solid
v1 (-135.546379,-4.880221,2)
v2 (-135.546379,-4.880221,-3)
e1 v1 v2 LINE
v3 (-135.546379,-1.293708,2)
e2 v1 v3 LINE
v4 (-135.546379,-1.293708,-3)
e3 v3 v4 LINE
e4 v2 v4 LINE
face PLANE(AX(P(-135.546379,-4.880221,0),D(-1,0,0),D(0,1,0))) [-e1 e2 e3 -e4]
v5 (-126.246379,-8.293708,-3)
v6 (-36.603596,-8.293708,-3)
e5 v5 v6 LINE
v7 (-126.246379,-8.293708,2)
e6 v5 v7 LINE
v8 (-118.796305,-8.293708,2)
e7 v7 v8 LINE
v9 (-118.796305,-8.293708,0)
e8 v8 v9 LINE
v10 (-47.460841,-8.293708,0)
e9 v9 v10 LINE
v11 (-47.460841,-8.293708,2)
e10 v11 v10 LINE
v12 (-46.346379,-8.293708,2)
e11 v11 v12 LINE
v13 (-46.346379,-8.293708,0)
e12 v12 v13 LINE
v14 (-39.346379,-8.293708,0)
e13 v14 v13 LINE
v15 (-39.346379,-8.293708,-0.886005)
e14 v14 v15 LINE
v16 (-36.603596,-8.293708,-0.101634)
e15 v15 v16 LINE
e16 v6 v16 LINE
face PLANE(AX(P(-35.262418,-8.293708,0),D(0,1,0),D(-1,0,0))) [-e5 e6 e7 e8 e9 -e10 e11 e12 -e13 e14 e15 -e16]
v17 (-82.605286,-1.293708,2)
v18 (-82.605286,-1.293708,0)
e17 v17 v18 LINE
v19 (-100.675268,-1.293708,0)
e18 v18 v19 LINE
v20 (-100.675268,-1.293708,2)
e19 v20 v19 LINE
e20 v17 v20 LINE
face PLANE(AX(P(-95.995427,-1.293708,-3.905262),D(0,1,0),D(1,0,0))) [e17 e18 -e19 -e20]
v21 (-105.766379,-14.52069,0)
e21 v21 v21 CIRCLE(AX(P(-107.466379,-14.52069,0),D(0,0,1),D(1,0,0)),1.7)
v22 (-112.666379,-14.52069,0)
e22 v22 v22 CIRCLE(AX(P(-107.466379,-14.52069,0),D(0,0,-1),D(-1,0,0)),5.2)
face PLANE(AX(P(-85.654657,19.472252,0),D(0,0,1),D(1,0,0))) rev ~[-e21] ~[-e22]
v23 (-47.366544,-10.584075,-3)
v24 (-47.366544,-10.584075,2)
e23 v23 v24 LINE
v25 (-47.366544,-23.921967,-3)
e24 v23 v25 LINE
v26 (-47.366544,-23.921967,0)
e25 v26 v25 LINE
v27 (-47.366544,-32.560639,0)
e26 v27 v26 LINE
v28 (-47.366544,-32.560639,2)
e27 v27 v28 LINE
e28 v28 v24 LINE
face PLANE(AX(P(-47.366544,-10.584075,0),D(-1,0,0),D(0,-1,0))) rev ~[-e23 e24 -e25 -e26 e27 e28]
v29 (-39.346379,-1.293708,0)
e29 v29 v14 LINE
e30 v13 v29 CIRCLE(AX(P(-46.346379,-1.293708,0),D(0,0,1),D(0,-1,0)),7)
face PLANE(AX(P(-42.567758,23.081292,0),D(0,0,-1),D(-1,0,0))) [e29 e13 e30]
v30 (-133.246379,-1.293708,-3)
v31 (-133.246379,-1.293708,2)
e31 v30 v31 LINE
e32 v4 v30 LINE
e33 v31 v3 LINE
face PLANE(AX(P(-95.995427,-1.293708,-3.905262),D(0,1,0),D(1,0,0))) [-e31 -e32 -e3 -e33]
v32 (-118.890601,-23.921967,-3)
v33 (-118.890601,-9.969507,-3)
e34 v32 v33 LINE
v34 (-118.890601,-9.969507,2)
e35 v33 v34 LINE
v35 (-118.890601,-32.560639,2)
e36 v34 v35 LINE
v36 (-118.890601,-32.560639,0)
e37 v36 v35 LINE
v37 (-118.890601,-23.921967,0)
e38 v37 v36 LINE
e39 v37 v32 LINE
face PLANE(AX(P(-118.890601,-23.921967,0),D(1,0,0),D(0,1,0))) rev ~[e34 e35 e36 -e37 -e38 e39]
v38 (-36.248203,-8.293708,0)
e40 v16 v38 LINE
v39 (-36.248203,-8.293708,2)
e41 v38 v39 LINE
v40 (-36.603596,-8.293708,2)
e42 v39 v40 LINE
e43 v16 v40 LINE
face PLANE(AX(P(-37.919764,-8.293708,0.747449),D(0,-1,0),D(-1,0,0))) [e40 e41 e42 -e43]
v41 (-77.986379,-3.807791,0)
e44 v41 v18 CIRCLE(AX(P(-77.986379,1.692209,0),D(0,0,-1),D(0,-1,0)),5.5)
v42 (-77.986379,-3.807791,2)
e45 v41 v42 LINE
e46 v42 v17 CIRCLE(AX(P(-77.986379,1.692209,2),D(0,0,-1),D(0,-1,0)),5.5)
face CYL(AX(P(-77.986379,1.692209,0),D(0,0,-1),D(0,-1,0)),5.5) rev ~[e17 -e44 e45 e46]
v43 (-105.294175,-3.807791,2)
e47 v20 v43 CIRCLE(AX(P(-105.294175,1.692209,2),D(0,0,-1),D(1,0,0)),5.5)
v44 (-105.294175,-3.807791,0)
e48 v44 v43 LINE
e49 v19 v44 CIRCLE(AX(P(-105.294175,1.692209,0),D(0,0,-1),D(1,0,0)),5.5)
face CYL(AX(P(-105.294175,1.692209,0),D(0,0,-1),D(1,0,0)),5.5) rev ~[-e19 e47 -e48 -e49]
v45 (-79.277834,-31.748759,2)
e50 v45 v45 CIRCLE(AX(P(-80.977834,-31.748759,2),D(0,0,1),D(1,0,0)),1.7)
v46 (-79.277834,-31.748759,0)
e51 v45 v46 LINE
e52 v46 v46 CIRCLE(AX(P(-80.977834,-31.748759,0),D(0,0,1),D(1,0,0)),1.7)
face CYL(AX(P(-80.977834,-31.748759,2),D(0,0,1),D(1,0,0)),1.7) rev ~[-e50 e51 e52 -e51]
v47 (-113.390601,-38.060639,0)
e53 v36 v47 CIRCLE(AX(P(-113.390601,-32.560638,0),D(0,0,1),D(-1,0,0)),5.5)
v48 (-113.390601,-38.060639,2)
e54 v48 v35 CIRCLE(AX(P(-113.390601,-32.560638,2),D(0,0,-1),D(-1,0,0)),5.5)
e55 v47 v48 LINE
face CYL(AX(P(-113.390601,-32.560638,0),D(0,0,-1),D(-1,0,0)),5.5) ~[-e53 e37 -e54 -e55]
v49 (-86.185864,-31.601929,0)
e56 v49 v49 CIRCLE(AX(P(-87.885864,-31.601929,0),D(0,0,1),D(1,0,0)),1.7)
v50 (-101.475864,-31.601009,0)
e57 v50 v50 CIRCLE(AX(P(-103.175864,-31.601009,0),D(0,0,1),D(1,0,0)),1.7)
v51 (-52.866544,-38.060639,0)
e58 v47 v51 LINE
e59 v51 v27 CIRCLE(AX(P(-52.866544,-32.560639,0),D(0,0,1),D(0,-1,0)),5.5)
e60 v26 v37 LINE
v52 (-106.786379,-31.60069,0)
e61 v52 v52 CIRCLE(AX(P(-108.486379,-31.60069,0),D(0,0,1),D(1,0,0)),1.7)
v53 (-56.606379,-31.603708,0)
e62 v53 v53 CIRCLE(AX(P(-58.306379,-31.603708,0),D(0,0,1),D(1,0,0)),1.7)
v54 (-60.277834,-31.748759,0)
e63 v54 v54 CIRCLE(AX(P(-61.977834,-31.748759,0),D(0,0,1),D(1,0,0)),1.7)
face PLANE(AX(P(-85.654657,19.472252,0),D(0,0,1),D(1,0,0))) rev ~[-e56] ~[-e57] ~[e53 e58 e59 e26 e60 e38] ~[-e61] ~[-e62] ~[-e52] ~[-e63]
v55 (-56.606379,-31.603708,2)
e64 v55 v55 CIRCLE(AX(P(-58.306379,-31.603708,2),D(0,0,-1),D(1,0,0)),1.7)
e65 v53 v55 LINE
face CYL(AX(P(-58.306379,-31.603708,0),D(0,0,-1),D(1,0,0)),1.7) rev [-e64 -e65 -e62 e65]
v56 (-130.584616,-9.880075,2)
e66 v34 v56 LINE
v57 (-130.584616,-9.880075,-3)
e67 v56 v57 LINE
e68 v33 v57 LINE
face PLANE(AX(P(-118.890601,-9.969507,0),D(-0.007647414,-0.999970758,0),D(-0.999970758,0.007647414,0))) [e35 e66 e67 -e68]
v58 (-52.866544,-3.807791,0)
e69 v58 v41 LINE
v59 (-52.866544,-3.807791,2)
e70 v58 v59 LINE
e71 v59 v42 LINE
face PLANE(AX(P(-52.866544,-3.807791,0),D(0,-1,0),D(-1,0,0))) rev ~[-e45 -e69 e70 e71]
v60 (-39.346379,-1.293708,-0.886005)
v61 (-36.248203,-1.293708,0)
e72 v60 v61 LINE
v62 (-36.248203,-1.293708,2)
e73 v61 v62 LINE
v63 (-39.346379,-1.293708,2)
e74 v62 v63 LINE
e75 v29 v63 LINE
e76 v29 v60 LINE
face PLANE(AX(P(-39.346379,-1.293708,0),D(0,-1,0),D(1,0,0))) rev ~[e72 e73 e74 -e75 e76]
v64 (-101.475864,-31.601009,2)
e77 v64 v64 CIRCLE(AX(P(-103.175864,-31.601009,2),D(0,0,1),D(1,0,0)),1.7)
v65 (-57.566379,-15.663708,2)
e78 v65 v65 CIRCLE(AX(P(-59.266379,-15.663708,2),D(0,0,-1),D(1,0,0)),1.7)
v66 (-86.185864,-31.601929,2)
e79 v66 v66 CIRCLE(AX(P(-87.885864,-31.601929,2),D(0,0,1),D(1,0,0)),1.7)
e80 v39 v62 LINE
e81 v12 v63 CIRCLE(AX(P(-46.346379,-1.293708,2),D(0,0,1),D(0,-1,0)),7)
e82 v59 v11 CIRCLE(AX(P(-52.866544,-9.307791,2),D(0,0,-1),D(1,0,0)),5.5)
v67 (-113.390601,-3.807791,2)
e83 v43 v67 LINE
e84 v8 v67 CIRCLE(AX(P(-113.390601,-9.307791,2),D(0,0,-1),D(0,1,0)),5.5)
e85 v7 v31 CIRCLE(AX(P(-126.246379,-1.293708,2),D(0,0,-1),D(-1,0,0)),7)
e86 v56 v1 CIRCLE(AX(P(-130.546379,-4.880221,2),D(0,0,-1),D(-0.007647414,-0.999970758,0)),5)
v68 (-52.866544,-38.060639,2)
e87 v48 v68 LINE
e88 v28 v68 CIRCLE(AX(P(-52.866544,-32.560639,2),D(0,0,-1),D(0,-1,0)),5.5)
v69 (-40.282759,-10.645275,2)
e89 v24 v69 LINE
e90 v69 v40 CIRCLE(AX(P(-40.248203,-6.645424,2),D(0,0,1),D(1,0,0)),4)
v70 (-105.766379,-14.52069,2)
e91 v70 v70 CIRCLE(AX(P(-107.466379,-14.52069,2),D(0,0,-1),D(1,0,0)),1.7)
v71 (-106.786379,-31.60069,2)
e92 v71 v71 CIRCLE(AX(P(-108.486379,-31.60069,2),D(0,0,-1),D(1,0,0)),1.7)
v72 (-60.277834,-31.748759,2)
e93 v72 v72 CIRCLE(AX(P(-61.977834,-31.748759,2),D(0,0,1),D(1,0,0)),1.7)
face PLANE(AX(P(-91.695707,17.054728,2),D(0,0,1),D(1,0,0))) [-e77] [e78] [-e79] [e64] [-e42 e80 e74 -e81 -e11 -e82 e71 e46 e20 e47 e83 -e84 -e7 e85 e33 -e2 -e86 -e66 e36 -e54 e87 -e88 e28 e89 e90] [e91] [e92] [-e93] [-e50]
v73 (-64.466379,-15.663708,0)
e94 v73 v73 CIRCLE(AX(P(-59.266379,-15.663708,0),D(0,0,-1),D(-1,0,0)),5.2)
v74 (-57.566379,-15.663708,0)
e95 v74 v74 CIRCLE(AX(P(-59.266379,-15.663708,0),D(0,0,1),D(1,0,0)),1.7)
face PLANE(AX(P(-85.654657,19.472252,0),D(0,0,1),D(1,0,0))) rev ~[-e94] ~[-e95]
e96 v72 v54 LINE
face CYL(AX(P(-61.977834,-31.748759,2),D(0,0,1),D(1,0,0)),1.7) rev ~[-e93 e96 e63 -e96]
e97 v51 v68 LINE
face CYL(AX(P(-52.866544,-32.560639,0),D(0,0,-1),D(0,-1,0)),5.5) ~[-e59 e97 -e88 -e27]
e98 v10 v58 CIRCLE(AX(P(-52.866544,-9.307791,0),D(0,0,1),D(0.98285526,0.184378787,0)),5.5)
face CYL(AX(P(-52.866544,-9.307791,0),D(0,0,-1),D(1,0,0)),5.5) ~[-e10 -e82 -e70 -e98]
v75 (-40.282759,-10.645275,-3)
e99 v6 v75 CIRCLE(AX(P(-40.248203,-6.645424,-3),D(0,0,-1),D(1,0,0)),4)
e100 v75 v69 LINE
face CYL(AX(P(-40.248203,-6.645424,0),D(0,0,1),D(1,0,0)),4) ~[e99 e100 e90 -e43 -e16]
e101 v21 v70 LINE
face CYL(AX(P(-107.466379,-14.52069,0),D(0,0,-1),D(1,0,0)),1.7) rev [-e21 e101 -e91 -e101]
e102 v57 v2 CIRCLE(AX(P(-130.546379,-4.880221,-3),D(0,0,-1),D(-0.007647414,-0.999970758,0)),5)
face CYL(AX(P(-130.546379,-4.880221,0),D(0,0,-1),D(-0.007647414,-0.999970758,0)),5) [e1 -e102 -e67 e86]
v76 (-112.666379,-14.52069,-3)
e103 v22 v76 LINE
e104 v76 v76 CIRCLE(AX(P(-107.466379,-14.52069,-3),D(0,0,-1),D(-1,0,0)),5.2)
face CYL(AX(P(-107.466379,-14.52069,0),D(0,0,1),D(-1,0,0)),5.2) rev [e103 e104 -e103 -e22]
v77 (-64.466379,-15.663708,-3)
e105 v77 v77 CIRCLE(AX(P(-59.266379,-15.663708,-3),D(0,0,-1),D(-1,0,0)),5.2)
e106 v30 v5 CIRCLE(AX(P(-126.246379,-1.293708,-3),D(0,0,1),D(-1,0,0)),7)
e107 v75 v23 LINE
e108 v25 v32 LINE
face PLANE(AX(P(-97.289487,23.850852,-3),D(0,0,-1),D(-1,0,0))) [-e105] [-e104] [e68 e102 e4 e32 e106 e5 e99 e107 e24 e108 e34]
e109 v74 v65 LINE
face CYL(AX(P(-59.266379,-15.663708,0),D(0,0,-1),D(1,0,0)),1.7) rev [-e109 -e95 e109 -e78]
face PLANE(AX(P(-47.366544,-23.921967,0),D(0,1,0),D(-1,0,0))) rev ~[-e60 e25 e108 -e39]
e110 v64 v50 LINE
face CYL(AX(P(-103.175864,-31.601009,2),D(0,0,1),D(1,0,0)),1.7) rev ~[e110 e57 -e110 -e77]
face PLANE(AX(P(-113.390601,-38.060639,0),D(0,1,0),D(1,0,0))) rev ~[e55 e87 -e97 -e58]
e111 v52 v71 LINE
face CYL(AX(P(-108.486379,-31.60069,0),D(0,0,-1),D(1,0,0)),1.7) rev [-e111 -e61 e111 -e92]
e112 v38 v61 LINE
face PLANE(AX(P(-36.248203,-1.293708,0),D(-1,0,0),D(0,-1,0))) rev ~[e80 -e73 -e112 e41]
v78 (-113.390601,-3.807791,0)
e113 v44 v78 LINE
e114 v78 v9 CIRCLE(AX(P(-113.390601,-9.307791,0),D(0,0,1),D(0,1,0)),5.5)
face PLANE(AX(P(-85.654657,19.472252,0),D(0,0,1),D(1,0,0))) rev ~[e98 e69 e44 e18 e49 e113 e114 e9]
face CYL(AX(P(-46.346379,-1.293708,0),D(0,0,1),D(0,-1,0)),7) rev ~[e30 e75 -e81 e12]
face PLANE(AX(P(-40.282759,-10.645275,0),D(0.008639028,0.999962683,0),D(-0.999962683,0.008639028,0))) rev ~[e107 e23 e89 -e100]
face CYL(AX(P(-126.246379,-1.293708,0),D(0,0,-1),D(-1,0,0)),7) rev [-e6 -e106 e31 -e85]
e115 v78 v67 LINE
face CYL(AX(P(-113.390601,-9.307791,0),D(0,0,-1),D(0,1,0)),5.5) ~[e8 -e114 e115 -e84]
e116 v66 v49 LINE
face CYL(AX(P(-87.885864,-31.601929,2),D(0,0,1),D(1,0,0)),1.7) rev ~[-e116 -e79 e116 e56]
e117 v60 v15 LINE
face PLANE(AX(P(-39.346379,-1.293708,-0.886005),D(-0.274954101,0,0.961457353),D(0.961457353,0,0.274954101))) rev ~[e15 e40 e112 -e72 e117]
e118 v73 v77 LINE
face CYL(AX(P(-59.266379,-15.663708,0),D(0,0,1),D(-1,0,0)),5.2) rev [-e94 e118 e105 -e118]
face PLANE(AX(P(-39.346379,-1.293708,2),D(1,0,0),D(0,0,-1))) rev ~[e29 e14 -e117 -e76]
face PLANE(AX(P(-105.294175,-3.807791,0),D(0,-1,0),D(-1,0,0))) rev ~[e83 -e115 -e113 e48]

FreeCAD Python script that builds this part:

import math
import FreeCAD as App
import Part
import Sketcher
from FreeCAD import Vector
Q = App.Units.Quantity


def add_polygon(sketch, points):
    """Adds a closed chain of lines whose ends are joined by coincident constraints."""
    first, n = sketch.GeometryCount, len(points)
    for a, b in zip(points, points[1:] + points[:1]):
        sketch.addGeometry(Part.LineSegment(App.Vector(*a, 0), App.Vector(*b, 0)), False)
    for i in range(n):
        sketch.addConstraint(Sketcher.Constraint("Coincident", first + i, 2, first + (i + 1) % n, 1))

doc = App.newDocument("Part")
body = doc.addObject("PartDesign::Body", "Body")

sketch1 = body.newObject("Sketcher::SketchObject", "Sketch")
sketch1.AttachmentSupport = (doc.getObject("XY_Plane"), [""])
sketch1.MapMode = "FlatFace"
sketch1.addGeometry([
    Part.ArcOfCircle(Part.Circle(Vector(-112.180084, 59.69512, 0), Vector(0, 0, 1), 5.5), math.radians(180), math.radians(270)),
    Part.LineSegment(Vector(-112.180084, 54.19512, 0), Vector(-105.294175, 54.19512, 0)),
    Part.ArcOfCircle(Part.Circle(Vector(-105.294175, 48.69512, 0), Vector(0, 0, 1), 5.5), math.radians(0), math.radians(90)),
    Part.LineSegment(Vector(-99.794175, 48.69512, 0), Vector(-99.794175, 35.930824, 0)),
    Part.ArcOfCircle(Part.Circle(Vector(-105.294175, 35.930824, 0), Vector(0, 0, 1), 5.5), math.radians(-90), math.radians(0)),
    Part.LineSegment(Vector(-105.294175, 30.430824, 0), Vector(-112.180084, 30.430824, 0)),
    Part.ArcOfCircle(Part.Circle(Vector(-112.180084, 24.930824, 0), Vector(0, 0, 1), 5.5), math.radians(90), math.radians(180)),
    Part.LineSegment(Vector(-117.680084, 24.930824, 0), Vector(-117.680084, 23.910008, 0)),
    Part.ArcOfCircle(Part.Circle(Vector(-112.180084, 23.910008, 0), Vector(0, 0, 1), 5.5), math.radians(180), math.radians(270)),
    Part.LineSegment(Vector(-112.180084, 18.410008, 0), Vector(-105.294175, 18.410008, 0)),
    Part.ArcOfCircle(Part.Circle(Vector(-105.294175, 12.910008, 0), Vector(0, 0, 1), 5.5), math.radians(0), math.radians(90)),
    Part.LineSegment(Vector(-99.794175, 12.910008, 0), Vector(-99.794175, 1.692209, 0)),
    Part.ArcOfCircle(Part.Circle(Vector(-105.294175, 1.692209, 0), Vector(0, 0, 1), 5.5), math.radians(-90), math.radians(0)),
    Part.LineSegment(Vector(-105.294175, -3.807791, 0), Vector(-113.390601, -3.807791, 0)),
    Part.ArcOfCircle(Part.Circle(Vector(-113.390601, -9.307791, 0), Vector(0, 0, 1), 5.5), math.radians(90), math.radians(180)),
    Part.LineSegment(Vector(-118.890601, -9.307791, 0), Vector(-118.890601, -32.560639, 0)),
    Part.ArcOfCircle(Part.Circle(Vector(-113.390601, -32.560639, 0), Vector(0, 0, 1), 5.5), math.radians(180), math.radians(270)),
    Part.LineSegment(Vector(-113.390601, -38.060639, 0), Vector(-52.866544, -38.060639, 0)),
    Part.ArcOfCircle(Part.Circle(Vector(-52.866544, -32.560639, 0), Vector(0, 0, 1), 5.5), math.radians(-90), math.radians(0)),
    Part.LineSegment(Vector(-47.366544, -32.560639, 0), Vector(-47.366544, -9.307791, 0)),
    Part.ArcOfCircle(Part.Circle(Vector(-52.866544, -9.307791, 0), Vector(0, 0, 1), 5.5), math.radians(0), math.radians(90)),
    Part.LineSegment(Vector(-52.866544, -3.807791, 0), Vector(-77.986379, -3.807791, 0)),
    Part.ArcOfCircle(Part.Circle(Vector(-77.986379, 1.692209, 0), Vector(0, 0, 1), 5.5), math.radians(180), math.radians(270)),
    Part.LineSegment(Vector(-83.486379, 1.692209, 0), Vector(-83.486379, 12.910008, 0)),
    Part.ArcOfCircle(Part.Circle(Vector(-77.986379, 12.910008, 0), Vector(0, 0, 1), 5.5), math.radians(90), math.radians(180)),
    Part.LineSegment(Vector(-77.986379, 18.410008, 0), Vector(-69.856379, 18.410008, 0)),
    Part.ArcOfCircle(Part.Circle(Vector(-69.856379, 23.910008, 0), Vector(0, 0, 1), 5.5), math.radians(-90), math.radians(0)),
    Part.LineSegment(Vector(-64.356379, 23.910008, 0), Vector(-64.356379, 24.930824, 0)),
    Part.ArcOfCircle(Part.Circle(Vector(-69.856379, 24.930824, 0), Vector(0, 0, 1), 5.5), math.radians(0), math.radians(90)),
    Part.LineSegment(Vector(-69.856379, 30.430824, 0), Vector(-77.986379, 30.430824, 0)),
    Part.ArcOfCircle(Part.Circle(Vector(-77.986379, 35.930824, 0), Vector(0, 0, 1), 5.5), math.radians(180), math.radians(270)),
    Part.LineSegment(Vector(-83.486379, 35.930824, 0), Vector(-83.486379, 55.21931, 0)),
    Part.ArcOfCircle(Part.Circle(Vector(-77.986379, 55.21931, 0), Vector(0, 0, 1), 5.5), math.radians(90), math.radians(180)),
    Part.LineSegment(Vector(-77.986379, 60.71931, 0), Vector(-54.190367, 60.71931, 0)),
    Part.ArcOfCircle(Part.Circle(Vector(-54.190367, 66.21931, 0), Vector(0, 0, 1), 5.5), math.radians(-90), math.radians(0)),
    Part.LineSegment(Vector(-48.690367, 66.21931, 0), Vector(-48.690367, 67.21931, 0)),
    Part.ArcOfCircle(Part.Circle(Vector(-54.190367, 67.21931, 0), Vector(0, 0, 1), 5.5), math.radians(0), math.radians(90)),
    Part.LineSegment(Vector(-54.190367, 72.71931, 0), Vector(-112.180084, 72.71931, 0)),
    Part.ArcOfCircle(Part.Circle(Vector(-112.180084, 67.21931, 0), Vector(0, 0, 1), 5.5), math.radians(90), math.radians(180)),
    Part.LineSegment(Vector(-117.680084, 67.21931, 0), Vector(-117.680084, 59.69512, 0)),
    Part.Circle(Vector(-108.486379, -31.60069, 0), Vector(0, 0, 1), 1.7),
    Part.Circle(Vector(-107.466379, -14.52069, 0), Vector(0, 0, 1), 1.7),
    Part.Circle(Vector(-58.306379, -31.603708, 0), Vector(0, 0, 1), 1.7),
    Part.Circle(Vector(-59.266379, -15.663708, 0), Vector(0, 0, 1), 1.7),
    Part.LineSegment(Vector(-70.086379, 21.460065, 0), Vector(-111.390601, 21.460065, 0)),
    Part.ArcOfCircle(Part.Circle(Vector(-111.390601, 23.460065, 0), Vector(0, 0, 1), 2), math.radians(180), math.radians(270)),
    Part.LineSegment(Vector(-113.390601, 23.460065, 0), Vector(-113.390601, 24.84252, 0)),
    Part.ArcOfCircle(Part.Circle(Vector(-111.390601, 24.84252, 0), Vector(0, 0, 1), 2), math.radians(90), math.radians(180)),
    Part.LineSegment(Vector(-111.390601, 26.84252, 0), Vector(-70.086379, 26.84252, 0)),
    Part.ArcOfCircle(Part.Circle(Vector(-70.086379, 24.84252, 0), Vector(0, 0, 1), 2), math.radians(0), math.radians(90)),
    Part.LineSegment(Vector(-68.086379, 24.84252, 0), Vector(-68.086379, 23.460065, 0)),
    Part.ArcOfCircle(Part.Circle(Vector(-70.086379, 23.460065, 0), Vector(0, 0, 1), 2), math.radians(-90), math.radians(0)),
    Part.Circle(Vector(-91.856379, 36.71931, 0), Vector(0, 0, 1), 1.7),
    Part.Circle(Vector(-107.466379, 60.71931, 0), Vector(0, 0, 1), 1.7),
    Part.Circle(Vector(-59.266379, 66.93931, 0), Vector(0, 0, 1), 1.7),
], False)
sketch1.addConstraint([
    Sketcher.Constraint("Tangent", 0, 2, 1, 1),
    Sketcher.Constraint("Tangent", 1, 2, 2, 2),
    Sketcher.Constraint("Tangent", 2, 1, 3, 1),
    Sketcher.Constraint("Tangent", 3, 2, 4, 2),
    Sketcher.Constraint("Tangent", 4, 1, 5, 1),
    Sketcher.Constraint("Tangent", 5, 2, 6, 1),
    Sketcher.Constraint("Tangent", 6, 2, 7, 1),
    Sketcher.Constraint("Tangent", 7, 2, 8, 1),
    Sketcher.Constraint("Tangent", 8, 2, 9, 1),
    Sketcher.Constraint("Tangent", 9, 2, 10, 2),
    Sketcher.Constraint("Tangent", 10, 1, 11, 1),
    Sketcher.Constraint("Tangent", 11, 2, 12, 2),
    Sketcher.Constraint("Tangent", 12, 1, 13, 1),
    Sketcher.Constraint("Tangent", 13, 2, 14, 1),
    Sketcher.Constraint("Tangent", 14, 2, 15, 1),
    Sketcher.Constraint("Tangent", 15, 2, 16, 1),
    Sketcher.Constraint("Tangent", 16, 2, 17, 1),
    Sketcher.Constraint("Tangent", 17, 2, 18, 1),
    Sketcher.Constraint("Tangent", 18, 2, 19, 1),
    Sketcher.Constraint("Tangent", 19, 2, 20, 1),
    Sketcher.Constraint("Tangent", 20, 2, 21, 1),
    Sketcher.Constraint("Tangent", 21, 2, 22, 2),
    Sketcher.Constraint("Tangent", 22, 1, 23, 1),
    Sketcher.Constraint("Tangent", 23, 2, 24, 2),
    Sketcher.Constraint("Tangent", 24, 1, 25, 1),
    Sketcher.Constraint("Tangent", 25, 2, 26, 1),
    Sketcher.Constraint("Tangent", 26, 2, 27, 1),
    Sketcher.Constraint("Tangent", 27, 2, 28, 1),
    Sketcher.Constraint("Tangent", 28, 2, 29, 1),
    Sketcher.Constraint("Tangent", 29, 2, 30, 2),
    Sketcher.Constraint("Tangent", 30, 1, 31, 1),
    Sketcher.Constraint("Tangent", 31, 2, 32, 2),
    Sketcher.Constraint("Tangent", 32, 1, 33, 1),
    Sketcher.Constraint("Tangent", 33, 2, 34, 1),
    Sketcher.Constraint("Tangent", 34, 2, 35, 1),
    Sketcher.Constraint("Tangent", 35, 2, 36, 1),
    Sketcher.Constraint("Tangent", 36, 2, 37, 1),
    Sketcher.Constraint("Tangent", 37, 2, 38, 1),
    Sketcher.Constraint("Tangent", 38, 2, 39, 1),
    Sketcher.Constraint("Tangent", 39, 2, 0, 1),
    Sketcher.Constraint("Tangent", 44, 2, 45, 2),
    Sketcher.Constraint("Tangent", 45, 1, 46, 1),
    Sketcher.Constraint("Tangent", 46, 2, 47, 2),
    Sketcher.Constraint("Tangent", 47, 1, 48, 1),
    Sketcher.Constraint("Tangent", 48, 2, 49, 2),
    Sketcher.Constraint("Tangent", 49, 1, 50, 1),
    Sketcher.Constraint("Tangent", 50, 2, 51, 2),
    Sketcher.Constraint("Tangent", 51, 1, 44, 1),
    Sketcher.Constraint("Horizontal", 1),
    Sketcher.Constraint("Vertical", 3),
    Sketcher.Constraint("Horizontal", 5),
    Sketcher.Constraint("Vertical", 7),
    Sketcher.Constraint("Horizontal", 9),
    Sketcher.Constraint("Vertical", 11),
    Sketcher.Constraint("Horizontal", 13),
    Sketcher.Constraint("Vertical", 15),
    Sketcher.Constraint("Horizontal", 17),
    Sketcher.Constraint("Vertical", 19),
    Sketcher.Constraint("Horizontal", 21),
    Sketcher.Constraint("Vertical", 23),
    Sketcher.Constraint("Horizontal", 25),
    Sketcher.Constraint("Vertical", 27),
    Sketcher.Constraint("Horizontal", 29),
    Sketcher.Constraint("Vertical", 31),
    Sketcher.Constraint("Horizontal", 33),
    Sketcher.Constraint("Vertical", 35),
    Sketcher.Constraint("Horizontal", 37),
    Sketcher.Constraint("Vertical", 39),
    Sketcher.Constraint("Horizontal", 44),
    Sketcher.Constraint("Vertical", 46),
    Sketcher.Constraint("Horizontal", 48),
    Sketcher.Constraint("Vertical", 50),
    Sketcher.Constraint("Equal", 0, 2),
    Sketcher.Constraint("Equal", 2, 4),
    Sketcher.Constraint("Equal", 4, 6),
    Sketcher.Constraint("Equal", 6, 8),
    Sketcher.Constraint("Equal", 8, 10),
    Sketcher.Constraint("Equal", 10, 12),
    Sketcher.Constraint("Equal", 12, 14),
    Sketcher.Constraint("Equal", 14, 16),
    Sketcher.Constraint("Equal", 16, 18),
    Sketcher.Constraint("Equal", 18, 20),
    Sketcher.Constraint("Equal", 20, 22),
    Sketcher.Constraint("Equal", 22, 24),
    Sketcher.Constraint("Equal", 24, 26),
    Sketcher.Constraint("Equal", 26, 28),
    Sketcher.Constraint("Equal", 28, 30),
    Sketcher.Constraint("Equal", 30, 32),
    Sketcher.Constraint("Equal", 32, 34),
    Sketcher.Constraint("Equal", 34, 36),
    Sketcher.Constraint("Equal", 36, 38),
    Sketcher.Constraint("Equal", 40, 41),
    Sketcher.Constraint("Equal", 41, 42),
    Sketcher.Constraint("Equal", 42, 43),
    Sketcher.Constraint("Equal", 45, 47),
    Sketcher.Constraint("Equal", 47, 49),
    Sketcher.Constraint("Equal", 49, 51),
    Sketcher.Constraint("Equal", 43, 52),
    Sketcher.Constraint("Equal", 52, 53),
    Sketcher.Constraint("Equal", 53, 54),
    Sketcher.Constraint("Horizontal", 14, 3, 20, 3),
    Sketcher.Constraint("Horizontal", 10, 3, 24, 3),
    Sketcher.Constraint("Horizontal", 6, 3, 28, 3),
    Sketcher.Constraint("Horizontal", 53, 3, 32, 1),
    Sketcher.Constraint("Vertical", 0, 3, 6, 3),
    Sketcher.Constraint("Vertical", 4, 3, 10, 3),
    Sketcher.Constraint("Vertical", 24, 3, 30, 3),
    Sketcher.Constraint("Vertical", 41, 3, 53, 3),
    Sketcher.Constraint("Vertical", 43, 3, 54, 3),
    Sketcher.Constraint("Vertical", 16, 2, 45, 1),
    Sketcher.Constraint("Radius", 45, Q("2 mm")),
    Sketcher.Constraint("Diameter", 40, Q("3.4 mm")),
    Sketcher.Constraint("Radius", 0, Q("5.5 mm")),
    Sketcher.Constraint("DistanceY", 35, 1, 35, 2, Q("1 mm")),
    Sketcher.Constraint("DistanceX", 25, 1, 25, 2, Q("8.13 mm")),
    Sketcher.Constraint("DistanceY", 11, 2, 11, 1, Q("11.217799 mm")),
    Sketcher.Constraint("DistanceX", 1, 1, 1, 2, Q("6.885909 mm")),
    Sketcher.Constraint("DistanceY", 39, 2, 39, 1, Q("7.52419 mm")),
    Sketcher.Constraint("DistanceX", 14, 3, -1, 1, Q("113.390601 mm")),
    Sketcher.Constraint("DistanceX", 13, 2, 13, 1, Q("8.096426 mm")),
    Sketcher.Constraint("DistanceX", 17, 1, 17, 2, Q("60.524057 mm")),
    Sketcher.Constraint("DistanceX", 21, 2, 21, 1, Q("25.119834 mm")),
    Sketcher.Constraint("DistanceX", 33, 1, 33, 2, Q("23.796012 mm")),
    Sketcher.Constraint("DistanceX", 44, 2, 44, 1, Q("41.304222 mm")),
    Sketcher.Constraint("DistanceY", 3, 2, 3, 1, Q("12.764296 mm")),
    Sketcher.Constraint("DistanceY", 7, 2, 7, 1, Q("1.020816 mm")),
    Sketcher.Constraint("DistanceY", 15, 2, 15, 1, Q("23.252847 mm")),
    Sketcher.Constraint("DistanceY", 46, 1, 46, 2, Q("1.382455 mm")),
    Sketcher.Constraint("DistanceY", -1, 1, 0, 3, Q("59.69512 mm")),
    Sketcher.Constraint("DistanceX", 40, 3, -1, 1, Q("108.486379 mm")),
    Sketcher.Constraint("DistanceY", 40, 3, -1, 1, Q("31.60069 mm")),
    Sketcher.Constraint("DistanceX", 41, 3, -1, 1, Q("107.466379 mm")),
    Sketcher.Constraint("DistanceY", 41, 3, -1, 1, Q("14.52069 mm")),
    Sketcher.Constraint("DistanceX", 42, 3, -1, 1, Q("58.306379 mm")),
    Sketcher.Constraint("DistanceX", 43, 3, -1, 1, Q("59.266379 mm")),
    Sketcher.Constraint("DistanceY", -1, 1, 47, 3, Q("24.84252 mm")),
    Sketcher.Constraint("DistanceX", 52, 3, -1, 1, Q("91.856379 mm")),
    Sketcher.Constraint("DistanceY", -1, 1, 52, 3, Q("36.71931 mm")),
    Sketcher.Constraint("DistanceY", -1, 1, 54, 3, Q("66.93931 mm")),
    Sketcher.Constraint("DistanceY", 42, 3, -1, 1, Q("31.603708 mm")),
    Sketcher.Constraint("DistanceY", 43, 3, -1, 1, Q("15.663708 mm")),
])
pad1 = body.newObject("PartDesign::Pad", "Pad")
pad1.Profile = sketch1
pad1.Length = 3

sketch2 = body.newObject("Sketcher::SketchObject", "Sketch001")
sketch2.AttachmentSupport = (doc.getObject("XY_Plane"), [""])
sketch2.MapMode = "FlatFace"
sketch2.addGeometry([
    Part.LineSegment(Vector(-118.890601, -9.969507, 0), Vector(-130.584616, -9.880075, 0)),
    Part.ArcOfCircle(Part.Circle(Vector(-130.546379, -4.880221, 0), Vector(0, 0, 1), 5), math.radians(180), math.radians(269.561831)),
    Part.LineSegment(Vector(-135.546379, -4.880221, 0), Vector(-135.546379, 5.415623, 0)),
    Part.ArcOfCircle(Part.Circle(Vector(-138.546379, 5.415623, 0), Vector(0, 0, 1), 3), math.radians(0), math.radians(90)),
    Part.LineSegment(Vector(-138.546379, 8.415623, 0), Vector(-145.752655, 8.415623, 0)),
    Part.ArcOfCircle(Part.Circle(Vector(-145.752655, 11.415623, 0), Vector(0, 0, 1), 3), math.radians(180), math.radians(270)),
    Part.LineSegment(Vector(-148.752655, 11.415623, 0), Vector(-148.752655, 38.179171, 0)),
    Part.ArcOfCircle(Part.Circle(Vector(-145.752655, 38.179171, 0), Vector(0, 0, 1), 3), math.radians(90), math.radians(180)),
    Part.LineSegment(Vector(-145.752655, 41.179171, 0), Vector(-138.546379, 41.179171, 0)),
    Part.ArcOfCircle(Part.Circle(Vector(-138.546379, 44.179171, 0), Vector(0, 0, 1), 3), math.radians(-90), math.radians(0)),
    Part.LineSegment(Vector(-135.546379, 44.179171, 0), Vector(-135.546379, 52.099902, 0)),
    Part.ArcOfCircle(Part.Circle(Vector(-130.546379, 52.099902, 0), Vector(0, 0, 1), 5), math.radians(90), math.radians(180)),
    Part.LineSegment(Vector(-130.546379, 57.099902, 0), Vector(-117.680084, 57.099902, 0)),
    Part.LineSegment(Vector(-117.680084, 57.099902, 0), Vector(-117.680084, 72.71931, 0)),
    Part.LineSegment(Vector(-117.680084, 72.71931, 0), Vector(-48.690367, 72.71931, 0)),
    Part.LineSegment(Vector(-48.690367, 72.71931, 0), Vector(-48.690367, 57.099902, 0)),
    Part.LineSegment(Vector(-48.690367, 57.099902, 0), Vector(-40.256901, 57.099902, 0)),
    Part.ArcOfCircle(Part.Circle(Vector(-40.256901, 53.099902, 0), Vector(0, 0, 1), 4), math.radians(0), math.radians(90)),
    Part.LineSegment(Vector(-36.256901, 53.099902, 0), Vector(-36.256901, 47.456292, 0)),
    Part.LineSegment(Vector(-36.256901, 47.456292, 0), Vector(-39.346379, 47.456292, 0)),
    Part.ArcOfCircle(Part.Circle(Vector(-46.346379, 47.456292, 0), Vector(0, 0, 1), 7), math.radians(0), math.radians(90)),
    Part.LineSegment(Vector(-46.346379, 54.456292, 0), Vector(-126.246379, 54.456292, 0)),
    Part.ArcOfCircle(Part.Circle(Vector(-126.246379, 47.456292, 0), Vector(0, 0, 1), 7), math.radians(90), math.radians(180)),
    Part.LineSegment(Vector(-133.246379, 47.456292, 0), Vector(-133.246379, 40.97723, 0)),
    Part.ArcOfCircle(Part.Circle(Vector(-136.246379, 40.97723, 0), Vector(0, 0, 1), 3), math.radians(-90), math.radians(0)),
    Part.LineSegment(Vector(-136.246379, 37.97723, 0), Vector(-142.162262, 37.97723, 0)),
    Part.ArcOfCircle(Part.Circle(Vector(-142.162262, 34.97723, 0), Vector(0, 0, 1), 3), math.radians(90), math.radians(180)),
    Part.LineSegment(Vector(-145.162262, 34.97723, 0), Vector(-145.162262, 14.363063, 0)),
    Part.ArcOfCircle(Part.Circle(Vector(-142.162262, 14.363063, 0), Vector(0, 0, 1), 3), math.radians(-180), math.radians(-90)),
    Part.LineSegment(Vector(-142.162262, 11.363063, 0), Vector(-136.246379, 11.363063, 0)),
    Part.ArcOfCircle(Part.Circle(Vector(-136.246379, 8.363063, 0), Vector(0, 0, 1), 3), math.radians(0), math.radians(90)),
    Part.LineSegment(Vector(-133.246379, 8.363063, 0), Vector(-133.246379, -1.293708, 0)),
    Part.ArcOfCircle(Part.Circle(Vector(-126.246379, -1.293708, 0), Vector(0, 0, 1), 7), math.radians(180), math.radians(270)),
    Part.LineSegment(Vector(-126.246379, -8.293708, 0), Vector(-46.346379, -8.293708, 0)),
    Part.ArcOfCircle(Part.Circle(Vector(-46.346379, -1.293708, 0), Vector(0, 0, 1), 7), math.radians(-90), math.radians(0)),
    Part.LineSegment(Vector(-39.346379, -1.293708, 0), Vector(-36.248203, -1.293708, 0)),
    Part.LineSegment(Vector(-36.248203, -1.293708, 0), Vector(-36.248203, -6.645424, 0)),
    Part.ArcOfCircle(Part.Circle(Vector(-40.248203, -6.645424, 0), Vector(0, 0, 1), 4), math.radians(-90.494986), math.radians(0)),
    Part.LineSegment(Vector(-40.282759, -10.645275, 0), Vector(-47.366544, -10.584075, 0)),
    Part.LineSegment(Vector(-47.366544, -10.584075, 0), Vector(-47.366544, -23.921967, 0)),
    Part.LineSegment(Vector(-47.366544, -23.921967, 0), Vector(-118.890601, -23.921967, 0)),
    Part.LineSegment(Vector(-118.890601, -23.921967, 0), Vector(-118.890601, -9.969507, 0)),
    Part.Circle(Vector(-59.266379, -15.663708, 0), Vector(0, 0, 1), 5.2),
    Part.Circle(Vector(-107.466379, -14.52069, 0), Vector(0, 0, 1), 5.2),
    Part.Circle(Vector(-59.266379, 66.93931, 0), Vector(0, 0, 1), 5.2),
    Part.Circle(Vector(-107.466379, 60.71931, 0), Vector(0, 0, 1), 5.2),
], False)
sketch2.addConstraint([
    Sketcher.Constraint("Tangent", 0, 2, 1, 2),
    Sketcher.Constraint("Tangent", 1, 1, 2, 1),
    Sketcher.Constraint("Tangent", 2, 2, 3, 1),
    Sketcher.Constraint("Tangent", 3, 2, 4, 1),
    Sketcher.Constraint("Tangent", 4, 2, 5, 2),
    Sketcher.Constraint("Tangent", 5, 1, 6, 1),
    Sketcher.Constraint("Tangent", 6, 2, 7, 2),
    Sketcher.Constraint("Tangent", 7, 1, 8, 1),
    Sketcher.Constraint("Tangent", 8, 2, 9, 1),
    Sketcher.Constraint("Tangent", 9, 2, 10, 1),
    Sketcher.Constraint("Tangent", 10, 2, 11, 2),
    Sketcher.Constraint("Tangent", 11, 1, 12, 1),
    Sketcher.Constraint("Coincident", 12, 2, 13, 1),
    Sketcher.Constraint("Coincident", 13, 2, 14, 1),
    Sketcher.Constraint("Coincident", 14, 2, 15, 1),
    Sketcher.Constraint("Coincident", 15, 2, 16, 1),
    Sketcher.Constraint("Tangent", 16, 2, 17, 2),
    Sketcher.Constraint("Tangent", 17, 1, 18, 1),
    Sketcher.Constraint("Coincident", 18, 2, 19, 1),
    Sketcher.Constraint("Coincident", 19, 2, 20, 1),
    Sketcher.Constraint("Tangent", 20, 2, 21, 1),
    Sketcher.Constraint("Tangent", 21, 2, 22, 1),
    Sketcher.Constraint("Tangent", 22, 2, 23, 1),
    Sketcher.Constraint("Tangent", 23, 2, 24, 2),
    Sketcher.Constraint("Tangent", 24, 1, 25, 1),
    Sketcher.Constraint("Tangent", 25, 2, 26, 1),
    Sketcher.Constraint("Tangent", 26, 2, 27, 1),
    Sketcher.Constraint("Tangent", 27, 2, 28, 1),
    Sketcher.Constraint("Tangent", 28, 2, 29, 1),
    Sketcher.Constraint("Tangent", 29, 2, 30, 2),
    Sketcher.Constraint("Tangent", 30, 1, 31, 1),
    Sketcher.Constraint("Tangent", 31, 2, 32, 1),
    Sketcher.Constraint("Tangent", 32, 2, 33, 1),
    Sketcher.Constraint("Tangent", 33, 2, 34, 1),
    Sketcher.Constraint("Coincident", 34, 2, 35, 1),
    Sketcher.Constraint("Coincident", 35, 2, 36, 1),
    Sketcher.Constraint("Tangent", 36, 2, 37, 2),
    Sketcher.Constraint("Tangent", 37, 1, 38, 1),
    Sketcher.Constraint("Coincident", 38, 2, 39, 1),
    Sketcher.Constraint("Coincident", 39, 2, 40, 1),
    Sketcher.Constraint("Coincident", 40, 2, 41, 1),
    Sketcher.Constraint("Coincident", 41, 2, 0, 1),
    Sketcher.Constraint("Vertical", 2),
    Sketcher.Constraint("Horizontal", 4),
    Sketcher.Constraint("Vertical", 6),
    Sketcher.Constraint("Horizontal", 8),
    Sketcher.Constraint("Vertical", 10),
    Sketcher.Constraint("Horizontal", 12),
    Sketcher.Constraint("Vertical", 13),
    Sketcher.Constraint("Horizontal", 14),
    Sketcher.Constraint("Vertical", 15),
    Sketcher.Constraint("Horizontal", 16),
    Sketcher.Constraint("Vertical", 18),
    Sketcher.Constraint("Horizontal", 19),
    Sketcher.Constraint("Horizontal", 21),
    Sketcher.Constraint("Vertical", 23),
    Sketcher.Constraint("Horizontal", 25),
    Sketcher.Constraint("Vertical", 27),
    Sketcher.Constraint("Horizontal", 29),
    Sketcher.Constraint("Vertical", 31),
    Sketcher.Constraint("Horizontal", 33),
    Sketcher.Constraint("Horizontal", 35),
    Sketcher.Constraint("Vertical", 36),
    Sketcher.Constraint("Vertical", 39),
    Sketcher.Constraint("Horizontal", 40),
    Sketcher.Constraint("Vertical", 41),
    Sketcher.Constraint("Equal", 3, 5),
    Sketcher.Constraint("Equal", 5, 7),
    Sketcher.Constraint("Equal", 7, 9),
    Sketcher.Constraint("Equal", 1, 11),
    Sketcher.Constraint("Equal", 20, 22),
    Sketcher.Constraint("Equal", 9, 24),
    Sketcher.Constraint("Equal", 24, 26),
    Sketcher.Constraint("Equal", 26, 28),
    Sketcher.Constraint("Equal", 28, 30),
    Sketcher.Constraint("Equal", 22, 32),
    Sketcher.Constraint("Equal", 32, 34),
    Sketcher.Constraint("Equal", 17, 37),
    Sketcher.Constraint("Equal", 42, 43),
    Sketcher.Constraint("Equal", 43, 44),
    Sketcher.Constraint("Equal", 44, 45),
    Sketcher.Constraint("Horizontal", 12, 2, 15, 2),
    Sketcher.Constraint("Horizontal", 22, 3, 18, 2),
    Sketcher.Constraint("Horizontal", 31, 2, 34, 2),
    Sketcher.Constraint("Vertical", 3, 3, 9, 3),
    Sketcher.Constraint("Vertical", 24, 3, 30, 3),
    Sketcher.Constraint("Vertical", 20, 3, 34, 3),
    Sketcher.Constraint("Vertical", 42, 3, 44, 3),
    Sketcher.Constraint("Vertical", 43, 3, 45, 3),
    Sketcher.Constraint("Radius", 1, Q("5 mm")),
    Sketcher.Constraint("Radius", 3, Q("3 mm")),
    Sketcher.Constraint("Radius", 17, Q("4 mm")),
    Sketcher.Constraint("Radius", 20, Q("7 mm")),
    Sketcher.Constraint("Diameter", 42, Q("10.4 mm")),
    Sketcher.Constraint("DistanceX", 21, 2, 21, 1, Q("79.9 mm")),
    Sketcher.Constraint("DistanceY", 10, 1, 10, 2, Q("7.920732 mm")),
    Sketcher.Constraint("DistanceY", 18, 2, 18, 1, Q("5.64361 mm")),
    Sketcher.Constraint("DistanceY", 31, 2, 31, 1, Q("9.65677 mm")),
    Sketcher.Constraint("DistanceY", 39, 2, 39, 1, Q("13.337891 mm")),
    Sketcher.Constraint("DistanceY", 41, 1, 41, 2, Q("13.95246 mm")),
    Sketcher.Constraint("DistanceX", 17, 3, -1, 1, Q("40.256901 mm")),
    Sketcher.Constraint("DistanceX", 40, 2, -1, 1, Q("118.890601 mm")),
    Sketcher.Constraint("Distance", 38, Q("7.084049 mm")),
    Sketcher.Constraint("DistanceX", 4, 2, 4, 1, Q("7.206276 mm")),
    Sketcher.Constraint("DistanceX", 12, 1, 12, 2, Q("12.866294 mm")),
    Sketcher.Constraint("DistanceX", 14, 1, 14, 2, Q("68.989718 mm")),
    Sketcher.Constraint("DistanceX", 16, 1, 16, 2, Q("8.433466 mm")),
    Sketcher.Constraint("DistanceX", 19, 2, 19, 1, Q("3.089478 mm")),
    Sketcher.Constraint("DistanceX", 25, 2, 25, 1, Q("5.915883 mm")),
    Sketcher.Constraint("DistanceX", 35, 1, 35, 2, Q("3.098176 mm")),
    Sketcher.Constraint("DistanceX", 40, 2, 40, 1, Q("71.524057 mm")),
    Sketcher.Constraint("DistanceY", 2, 1, 2, 2, Q("10.295844 mm")),
    Sketcher.Constraint("DistanceY", 6, 1, 6, 2, Q("26.763548 mm")),
    Sketcher.Constraint("DistanceY", 13, 1, 13, 2, Q("15.619408 mm")),
    Sketcher.Constraint("DistanceY", 23, 2, 23, 1, Q("6.479062 mm")),
    Sketcher.Constraint("DistanceY", 27, 2, 27, 1, Q("20.614167 mm")),
    Sketcher.Constraint("DistanceY", 36, 2, 36, 1, Q("5.351716 mm")),
    Sketcher.Constraint("DistanceY", 1, 3, -1, 1, Q("4.880221 mm")),
    Sketcher.Constraint("DistanceX", 42, 3, -1, 1, Q("59.266379 mm")),
    Sketcher.Constraint("DistanceX", 43, 3, -1, 1, Q("107.466379 mm")),
    Sketcher.Constraint("DistanceY", 43, 3, -1, 1, Q("14.52069 mm")),
    Sketcher.Constraint("DistanceY", -1, 1, 44, 3, Q("66.93931 mm")),
    Sketcher.Constraint("DistanceY", -1, 1, 45, 3, Q("60.71931 mm")),
    Sketcher.Constraint("DistanceY", 42, 3, -1, 1, Q("15.663708 mm")),
])
pad2 = body.newObject("PartDesign::Pad", "Pad001")
pad2.Profile = sketch2
pad2.Type = "TwoLengths"
pad2.Length = 3
pad2.Length2 = 3
pad2.Reversed = True

sketch3 = body.newObject("Sketcher::SketchObject", "Sketch002")
sketch3.AttachmentSupport = (doc.getObject("XY_Plane"), [""])
sketch3.MapMode = "FlatFace"
sketch3.AttachmentOffset = App.Placement(Vector(0, 0, 3), App.Rotation())
add_polygon(sketch3, [(-156.390757, 79.870472), (-156.390757, -45.761017), (-27.000656, -45.761017), (-27.000656, 79.870472)])
sketch3.addConstraint([
    Sketcher.Constraint("Vertical", 0),
    Sketcher.Constraint("Horizontal", 1),
    Sketcher.Constraint("Vertical", 2),
    Sketcher.Constraint("Horizontal", 3),
    Sketcher.Constraint("DistanceX", 1, 1, 1, 2, Q("129.390101 mm")),
    Sketcher.Constraint("DistanceY", 0, 2, 0, 1, Q("125.631489 mm")),
    Sketcher.Constraint("DistanceX", 0, 2, -1, 1, Q("156.390757 mm")),
    Sketcher.Constraint("DistanceY", 0, 2, -1, 1, Q("45.761017 mm")),
])
pocket1 = body.newObject("PartDesign::Pocket", "Pocket")
pocket1.Profile = sketch3
pocket1.Length = 1

sketch4 = body.newObject("Sketcher::SketchObject", "Sketch003")
sketch4.AttachmentSupport = (doc.getObject("XY_Plane"), [""])
sketch4.MapMode = "FlatFace"
sketch4.AttachmentOffset = App.Placement(Vector(0, 0, 2), App.Rotation())
sketch4.addGeometry([
    Part.Circle(Vector(-69.623492, 64.727424, 0), Vector(0, 0, 1), 1.5),
    Part.Circle(Vector(-83.623492, 64.727424, 0), Vector(0, 0, 1), 1.5),
], False)
sketch4.addConstraint([
    Sketcher.Constraint("Equal", 0, 1),
    Sketcher.Constraint("Horizontal", 0, 3, 1, 3),
    Sketcher.Constraint("Diameter", 0, Q("3 mm")),
    Sketcher.Constraint("DistanceX", 1, 3, 0, 3, Q("14 mm")),
    Sketcher.Constraint("DistanceX", 0, 3, -1, 1, Q("69.623492 mm")),
    Sketcher.Constraint("DistanceY", -1, 1, 0, 3, Q("64.727424 mm")),
])
pocket2 = body.newObject("PartDesign::Pocket", "Pocket001")
pocket2.Profile = sketch4
pocket2.Length = 8

sketch5 = body.newObject("Sketcher::SketchObject", "Sketch004")
sketch5.AttachmentSupport = (doc.getObject("XY_Plane"), [""])
sketch5.MapMode = "FlatFace"
add_polygon(sketch5, [(-35.262418, 54.456292), (-35.262418, -8.293708), (-49.873098, -8.293708), (-49.873098, 54.456292)])
sketch5.addConstraint([
    Sketcher.Constraint("Vertical", 0),
    Sketcher.Constraint("Horizontal", 1),
    Sketcher.Constraint("Vertical", 2),
    Sketcher.Constraint("Horizontal", 3),
    Sketcher.Constraint("DistanceY", 0, 2, 0, 1, Q("62.75 mm")),
    Sketcher.Constraint("DistanceX", 1, 2, 1, 1, Q("14.61068 mm")),
    Sketcher.Constraint("DistanceX", 0, 2, -1, 1, Q("35.262418 mm")),
    Sketcher.Constraint("DistanceY", 0, 2, -1, 1, Q("8.293708 mm")),
])
pocket3 = body.newObject("PartDesign::Pocket", "Pocket002")
pocket3.Profile = sketch5
pocket3.Length = 8

sketch6 = body.newObject("Sketcher::SketchObject", "Sketch005")
sketch6.AttachmentSupport = (doc.getObject("XZ_Plane"), [""])
sketch6.MapMode = "FlatFace"
sketch6.AttachmentOffset = App.Placement(Vector(0, 0, 1.293708), App.Rotation())
add_polygon(sketch6, [(-39.346379, -0.886005), (-39.346379, 2), (-36.248203, 2), (-36.248203, 0)])
sketch6.addConstraint([
    Sketcher.Constraint("Vertical", 0),
    Sketcher.Constraint("Horizontal", 1),
    Sketcher.Constraint("Vertical", 2),
    Sketcher.Constraint("PointOnObject", 2, 2, -1),
    Sketcher.Constraint("DistanceY", 2, 2, 2, 1, Q("2 mm")),
    Sketcher.Constraint("DistanceX", 1, 1, 1, 2, Q("3.098176 mm")),
    Sketcher.Constraint("DistanceY", 0, 1, 0, 2, Q("2.886005 mm")),
    Sketcher.Constraint("DistanceX", 0, 2, -1, 1, Q("39.346379 mm")),
])
pad3 = body.newObject("PartDesign::Pad", "Pad002")
pad3.Profile = sketch6
pad3.Length = 7

sketch7 = body.newObject("Sketcher::SketchObject", "Sketch006")
sketch7.AttachmentSupport = (doc.getObject("XZ_Plane"), [""])
sketch7.MapMode = "FlatFace"
sketch7.AttachmentOffset = App.Placement(Vector(0, 0, -47.456292), App.Rotation())
add_polygon(sketch7, [(-39.346379, 2), (-39.346379, -0.873043), (-36.256901, 0), (-36.256901, 2)])
sketch7.addConstraint([
    Sketcher.Constraint("Vertical", 0),
    Sketcher.Constraint("Vertical", 2),
    Sketcher.Constraint("Horizontal", 3),
    Sketcher.Constraint("PointOnObject", 1, 2, -1),
    Sketcher.Constraint("DistanceY", 2, 1, 2, 2, Q("2 mm")),
    Sketcher.Constraint("DistanceX", 1, 2, -1, 1, Q("36.256901 mm")),
    Sketcher.Constraint("DistanceX", 3, 2, 3, 1, Q("3.089478 mm")),
    Sketcher.Constraint("DistanceY", 0, 2, 0, 1, Q("2.873043 mm")),
])
pad4 = body.newObject("PartDesign::Pad", "Pad003")
pad4.Profile = sketch7
pad4.Length = 7
pad4.Reversed = True

sketch8 = body.newObject("Sketcher::SketchObject", "Sketch007")
sketch8.AttachmentSupport = (doc.getObject("XZ_Plane"), [""])
sketch8.MapMode = "FlatFace"
sketch8.AttachmentOffset = App.Placement(Vector(0, 0, 1.293708), App.Rotation())
add_polygon(sketch8, [(-167.899094, -13.882295), (-167.899094, 6.071772), (-24.09176, 6.071772), (-24.09176, -13.882295)])
sketch8.addConstraint([
    Sketcher.Constraint("Vertical", 0),
    Sketcher.Constraint("Horizontal", 1),
    Sketcher.Constraint("Vertical", 2),
    Sketcher.Constraint("Horizontal", 3),
    Sketcher.Constraint("DistanceX", 1, 1, 1, 2, Q("143.807334 mm")),
    Sketcher.Constraint("DistanceY", 0, 1, 0, 2, Q("19.954068 mm")),
    Sketcher.Constraint("DistanceX", 1, 2, -1, 1, Q("24.09176 mm")),
    Sketcher.Constraint("DistanceY", -1, 1, 0, 2, Q("6.071772 mm")),
])
pocket4 = body.newObject("PartDesign::Pocket", "Pocket003")
pocket4.Profile = sketch8
pocket4.Length = 89

sketch9 = body.newObject("Sketcher::SketchObject", "Sketch008")
sketch9.AttachmentSupport = (doc.getObject("XY_Plane"), [""])
sketch9.MapMode = "FlatFace"
sketch9.AttachmentOffset = App.Placement(Vector(0, 0, 2), App.Rotation())
sketch9.addGeometry([
    Part.Circle(Vector(-103.175864, -31.601009, 0), Vector(0, 0, 1), 1.7),
    Part.Circle(Vector(-87.885864, -31.601929, 0), Vector(0, 0, 1), 1.7),
    Part.Circle(Vector(-80.977834, -31.748759, 0), Vector(0, 0, 1), 1.7),
    Part.Circle(Vector(-61.977834, -31.748759, 0), Vector(0, 0, 1), 1.7),
], False)
sketch9.addConstraint([
    Sketcher.Constraint("Equal", 0, 1),
    Sketcher.Constraint("Equal", 1, 2),
    Sketcher.Constraint("Equal", 2, 3),
    Sketcher.Constraint("Horizontal", 2, 3, 3, 3),
    Sketcher.Constraint("Diameter", 0, Q("3.4 mm")),
    Sketcher.Constraint("DistanceX", 2, 3, 3, 3, Q("19 mm")),
    Sketcher.Constraint("DistanceX", 0, 3, 1, 3, Q("15.29 mm")),
    Sketcher.Constraint("DistanceY", 0, 3, -1, 1, Q("31.601009 mm")),
    Sketcher.Constraint("DistanceY", 1, 3, -1, 1, Q("31.601929 mm")),
    Sketcher.Constraint("DistanceY", 2, 3, -1, 1, Q("31.748759 mm")),
    Sketcher.Constraint("DistanceX", 1, 3, 2, 3, Q("6.90803 mm")),
    Sketcher.Constraint("DistanceX", 0, 3, -1, 1, Q("103.175864 mm")),
])
pocket5 = body.newObject("PartDesign::Pocket", "Pocket004")
pocket5.Profile = sketch9
pocket5.Length = 31

doc.recompute()
